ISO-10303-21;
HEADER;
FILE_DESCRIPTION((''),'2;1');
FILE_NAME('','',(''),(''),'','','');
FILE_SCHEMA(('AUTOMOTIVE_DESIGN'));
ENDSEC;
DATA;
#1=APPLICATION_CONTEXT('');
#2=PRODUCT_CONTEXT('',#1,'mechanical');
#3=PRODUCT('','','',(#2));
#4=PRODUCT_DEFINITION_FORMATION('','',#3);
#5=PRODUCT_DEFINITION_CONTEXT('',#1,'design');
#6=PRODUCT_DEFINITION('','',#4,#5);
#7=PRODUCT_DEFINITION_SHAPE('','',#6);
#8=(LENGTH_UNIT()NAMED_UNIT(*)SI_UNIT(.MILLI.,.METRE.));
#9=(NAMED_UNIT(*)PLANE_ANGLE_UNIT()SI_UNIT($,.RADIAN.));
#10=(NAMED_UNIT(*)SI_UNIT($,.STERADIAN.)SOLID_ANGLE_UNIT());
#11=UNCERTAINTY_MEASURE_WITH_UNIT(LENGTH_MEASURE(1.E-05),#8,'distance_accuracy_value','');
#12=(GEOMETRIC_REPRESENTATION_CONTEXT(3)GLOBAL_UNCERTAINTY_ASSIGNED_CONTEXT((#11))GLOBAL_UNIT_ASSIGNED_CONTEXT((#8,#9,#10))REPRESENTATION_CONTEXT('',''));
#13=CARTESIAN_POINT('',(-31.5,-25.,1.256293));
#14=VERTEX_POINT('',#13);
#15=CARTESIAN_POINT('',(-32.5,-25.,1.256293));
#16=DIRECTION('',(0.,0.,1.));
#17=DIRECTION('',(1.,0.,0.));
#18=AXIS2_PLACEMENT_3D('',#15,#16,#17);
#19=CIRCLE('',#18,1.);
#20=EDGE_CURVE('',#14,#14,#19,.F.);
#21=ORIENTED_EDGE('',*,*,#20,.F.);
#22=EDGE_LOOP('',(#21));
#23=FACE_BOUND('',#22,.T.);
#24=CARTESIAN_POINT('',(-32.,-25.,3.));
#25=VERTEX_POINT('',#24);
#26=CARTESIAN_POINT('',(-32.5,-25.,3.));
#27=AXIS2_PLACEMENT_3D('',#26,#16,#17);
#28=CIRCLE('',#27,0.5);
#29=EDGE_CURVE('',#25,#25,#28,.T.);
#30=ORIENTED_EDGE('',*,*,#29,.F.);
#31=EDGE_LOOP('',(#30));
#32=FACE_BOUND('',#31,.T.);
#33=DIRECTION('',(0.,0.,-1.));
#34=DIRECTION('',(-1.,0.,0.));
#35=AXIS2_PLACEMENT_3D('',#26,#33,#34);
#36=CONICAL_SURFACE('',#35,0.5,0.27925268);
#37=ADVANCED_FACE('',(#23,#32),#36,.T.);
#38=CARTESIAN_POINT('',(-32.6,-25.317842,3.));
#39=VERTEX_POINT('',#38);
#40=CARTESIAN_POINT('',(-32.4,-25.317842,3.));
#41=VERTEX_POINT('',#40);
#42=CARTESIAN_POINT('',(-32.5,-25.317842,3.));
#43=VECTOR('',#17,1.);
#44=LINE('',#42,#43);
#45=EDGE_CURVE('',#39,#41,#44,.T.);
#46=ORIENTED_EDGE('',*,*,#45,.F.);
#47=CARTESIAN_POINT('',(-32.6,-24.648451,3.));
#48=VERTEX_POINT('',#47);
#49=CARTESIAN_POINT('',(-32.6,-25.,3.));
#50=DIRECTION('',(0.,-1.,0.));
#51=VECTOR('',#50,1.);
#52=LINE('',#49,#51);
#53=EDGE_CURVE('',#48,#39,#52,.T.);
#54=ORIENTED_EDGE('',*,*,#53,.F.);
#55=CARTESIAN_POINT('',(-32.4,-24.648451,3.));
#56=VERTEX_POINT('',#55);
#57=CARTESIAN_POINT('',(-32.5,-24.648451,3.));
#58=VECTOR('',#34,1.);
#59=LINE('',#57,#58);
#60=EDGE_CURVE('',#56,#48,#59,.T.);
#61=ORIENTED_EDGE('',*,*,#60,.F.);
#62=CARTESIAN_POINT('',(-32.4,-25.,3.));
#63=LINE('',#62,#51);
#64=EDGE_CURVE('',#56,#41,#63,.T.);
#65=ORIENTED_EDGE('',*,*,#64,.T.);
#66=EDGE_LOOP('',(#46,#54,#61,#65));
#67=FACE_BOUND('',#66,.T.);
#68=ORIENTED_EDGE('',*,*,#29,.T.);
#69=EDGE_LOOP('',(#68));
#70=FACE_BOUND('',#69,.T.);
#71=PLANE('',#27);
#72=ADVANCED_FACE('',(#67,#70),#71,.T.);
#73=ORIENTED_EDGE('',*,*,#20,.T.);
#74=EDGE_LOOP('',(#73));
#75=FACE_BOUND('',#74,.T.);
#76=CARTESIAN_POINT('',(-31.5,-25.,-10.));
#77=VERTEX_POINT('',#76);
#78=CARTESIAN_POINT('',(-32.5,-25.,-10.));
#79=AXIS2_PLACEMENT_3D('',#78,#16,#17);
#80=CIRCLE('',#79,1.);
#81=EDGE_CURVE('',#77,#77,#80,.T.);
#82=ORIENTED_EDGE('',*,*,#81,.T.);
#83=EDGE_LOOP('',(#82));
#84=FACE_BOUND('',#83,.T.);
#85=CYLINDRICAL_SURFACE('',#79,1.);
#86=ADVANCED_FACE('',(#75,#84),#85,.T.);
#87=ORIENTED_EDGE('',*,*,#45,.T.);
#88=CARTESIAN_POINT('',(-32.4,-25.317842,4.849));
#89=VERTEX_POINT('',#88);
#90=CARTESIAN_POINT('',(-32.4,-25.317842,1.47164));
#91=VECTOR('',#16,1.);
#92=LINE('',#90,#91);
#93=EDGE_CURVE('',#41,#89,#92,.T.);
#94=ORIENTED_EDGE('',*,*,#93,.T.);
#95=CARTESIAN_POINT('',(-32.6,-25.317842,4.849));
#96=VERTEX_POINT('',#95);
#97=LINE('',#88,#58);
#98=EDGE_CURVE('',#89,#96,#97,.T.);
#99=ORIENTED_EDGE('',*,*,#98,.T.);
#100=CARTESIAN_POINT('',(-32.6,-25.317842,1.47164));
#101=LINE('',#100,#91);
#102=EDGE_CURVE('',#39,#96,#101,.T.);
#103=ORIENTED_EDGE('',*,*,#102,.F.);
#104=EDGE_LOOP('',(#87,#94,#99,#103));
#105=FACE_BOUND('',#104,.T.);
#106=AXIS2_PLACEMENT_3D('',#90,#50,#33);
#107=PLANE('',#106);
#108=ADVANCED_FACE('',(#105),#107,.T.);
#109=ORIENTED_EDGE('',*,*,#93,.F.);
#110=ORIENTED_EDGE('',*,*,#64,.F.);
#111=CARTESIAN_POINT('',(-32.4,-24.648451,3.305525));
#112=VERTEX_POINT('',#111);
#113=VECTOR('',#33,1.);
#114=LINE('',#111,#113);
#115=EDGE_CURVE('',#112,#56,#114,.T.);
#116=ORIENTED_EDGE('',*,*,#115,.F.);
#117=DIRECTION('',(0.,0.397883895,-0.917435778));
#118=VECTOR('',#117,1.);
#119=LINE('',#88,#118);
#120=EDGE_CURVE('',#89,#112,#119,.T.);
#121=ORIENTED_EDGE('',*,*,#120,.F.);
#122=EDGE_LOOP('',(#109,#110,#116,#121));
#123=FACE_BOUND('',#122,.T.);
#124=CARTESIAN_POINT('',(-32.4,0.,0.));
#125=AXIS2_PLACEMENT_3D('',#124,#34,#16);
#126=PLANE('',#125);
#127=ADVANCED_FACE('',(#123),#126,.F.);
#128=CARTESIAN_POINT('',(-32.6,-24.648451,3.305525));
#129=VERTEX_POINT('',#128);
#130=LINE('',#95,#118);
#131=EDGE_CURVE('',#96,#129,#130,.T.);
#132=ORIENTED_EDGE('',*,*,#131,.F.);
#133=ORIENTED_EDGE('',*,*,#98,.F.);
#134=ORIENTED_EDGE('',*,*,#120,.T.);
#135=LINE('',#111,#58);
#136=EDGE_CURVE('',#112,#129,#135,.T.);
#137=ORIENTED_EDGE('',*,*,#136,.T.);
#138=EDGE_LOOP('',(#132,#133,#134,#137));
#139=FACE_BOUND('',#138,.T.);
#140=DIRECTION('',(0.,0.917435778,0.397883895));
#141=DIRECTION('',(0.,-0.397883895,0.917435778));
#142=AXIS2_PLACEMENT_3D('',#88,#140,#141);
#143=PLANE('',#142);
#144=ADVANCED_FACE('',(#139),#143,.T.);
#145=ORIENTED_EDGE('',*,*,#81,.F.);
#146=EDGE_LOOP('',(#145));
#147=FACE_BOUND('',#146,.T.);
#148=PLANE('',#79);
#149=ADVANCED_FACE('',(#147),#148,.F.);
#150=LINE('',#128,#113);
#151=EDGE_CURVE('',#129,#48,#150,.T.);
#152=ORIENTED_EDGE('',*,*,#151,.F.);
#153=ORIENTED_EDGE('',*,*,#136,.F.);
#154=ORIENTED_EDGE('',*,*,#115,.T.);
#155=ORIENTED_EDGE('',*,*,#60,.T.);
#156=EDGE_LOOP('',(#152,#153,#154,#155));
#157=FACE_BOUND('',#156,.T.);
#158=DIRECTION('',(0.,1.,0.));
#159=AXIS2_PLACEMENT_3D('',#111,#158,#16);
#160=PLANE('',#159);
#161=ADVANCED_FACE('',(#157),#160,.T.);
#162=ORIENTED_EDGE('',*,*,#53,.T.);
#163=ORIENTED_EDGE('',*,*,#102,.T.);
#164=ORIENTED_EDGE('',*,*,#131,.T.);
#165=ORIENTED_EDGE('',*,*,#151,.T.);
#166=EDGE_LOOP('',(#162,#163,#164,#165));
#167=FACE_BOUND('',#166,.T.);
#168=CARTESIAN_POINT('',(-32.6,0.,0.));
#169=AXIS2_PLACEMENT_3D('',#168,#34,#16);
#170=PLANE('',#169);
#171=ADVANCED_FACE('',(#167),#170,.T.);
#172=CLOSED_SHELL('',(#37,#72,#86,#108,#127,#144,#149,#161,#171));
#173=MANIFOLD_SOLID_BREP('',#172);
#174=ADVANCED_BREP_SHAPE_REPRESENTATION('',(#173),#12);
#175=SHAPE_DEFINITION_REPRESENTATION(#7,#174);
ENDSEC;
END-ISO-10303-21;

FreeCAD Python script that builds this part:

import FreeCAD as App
import Part
import Sketcher


def edges_at(feature, points):
    """Names of the edges that pass closest to the given points."""
    edges = feature.Shape.Edges
    near = lambda p: min(range(len(edges)), key=lambda i: edges[i].distToShape(Part.Vertex(*p))[0])
    return sorted({f"Edge{near(p) + 1}" for p in points})

doc = App.newDocument("Part")
body = doc.addObject("PartDesign::Body", "Body")

sketch1 = body.newObject("Sketcher::SketchObject", "Sketch")
sketch1.AttachmentSupport = (doc.getObject("XY_Plane"), [""])
sketch1.MapMode = "FlatFace"
sketch1.addGeometry(Part.Circle(App.Vector(-32.5, -25, 0), App.Vector(0, 0, 1), 1), False)
sketch1.addConstraint(Sketcher.Constraint("Diameter", 0, 2.0))
sketch1.addConstraint(Sketcher.Constraint("DistanceY", 0, 3, -1, 1, 25.0))
sketch1.addConstraint(Sketcher.Constraint("DistanceX", 0, 3, -1, 1, 32.5))
pad1 = body.newObject("PartDesign::Pad", "Pad")
pad1.Profile = sketch1
pad1.Type = "TwoLengths"
pad1.Length = 3
pad1.Length2 = 10
doc.recompute()

chamfer = body.newObject("PartDesign::Chamfer", "Chamfer")
chamfer.Base = (pad1, edges_at(pad1, [(-33.5, -25, 3)]))
chamfer.ChamferType = "Two distances"
chamfer.Size = 0.5
chamfer.Size2 = 1.743707
chamfer.FlipDirection = True

sketch2 = body.newObject("Sketcher::SketchObject", "Sketch001")
sketch2.AttachmentSupport = (doc.getObject("YZ_Plane"), [""])
sketch2.MapMode = "FlatFace"
sketch2.AttachmentOffset = App.Placement(App.Vector(0, 0, -32.5), App.Rotation())
sketch2.addGeometry(Part.LineSegment(App.Vector(-25.317842, 1.47164, 0), App.Vector(-25.317842, 4.849, 0)), False)
sketch2.addGeometry(Part.LineSegment(App.Vector(-25.317842, 4.849, 0), App.Vector(-24.648451, 3.305525, 0)), False)
sketch2.addGeometry(Part.LineSegment(App.Vector(-24.648451, 3.305525, 0), App.Vector(-24.648451, 1.47164, 0)), False)
sketch2.addGeometry(Part.LineSegment(App.Vector(-24.648451, 1.47164, 0), App.Vector(-25.317842, 1.47164, 0)), False)
sketch2.addConstraint(Sketcher.Constraint("Coincident", 0, 2, 1, 1))
sketch2.addConstraint(Sketcher.Constraint("Coincident", 1, 2, 2, 1))
sketch2.addConstraint(Sketcher.Constraint("Coincident", 2, 2, 3, 1))
sketch2.addConstraint(Sketcher.Constraint("Coincident", 3, 2, 0, 1))
sketch2.addConstraint(Sketcher.Constraint("Vertical", 0))
sketch2.addConstraint(Sketcher.Constraint("Vertical", 2))
sketch2.addConstraint(Sketcher.Constraint("Horizontal", 3))
sketch2.addConstraint(Sketcher.Constraint("DistanceY", -1, 1, 0, 2, 4.849))
sketch2.addConstraint(Sketcher.Constraint("DistanceX", 3, 2, 3, 1, 0.669391))
sketch2.addConstraint(Sketcher.Constraint("DistanceY", 0, 1, 0, 2, 3.37736))
sketch2.addConstraint(Sketcher.Constraint("Distance", 1, 1.682379))
sketch2.addConstraint(Sketcher.Constraint("DistanceX", 1, 2, -1, 1, 24.648451))
pad2 = body.newObject("PartDesign::Pad", "Pad001")
pad2.Profile = sketch2
pad2.Type = "TwoLengths"
pad2.Length = 0.1
pad2.Length2 = 0.1
pad2.Reversed = True

doc.recompute()
